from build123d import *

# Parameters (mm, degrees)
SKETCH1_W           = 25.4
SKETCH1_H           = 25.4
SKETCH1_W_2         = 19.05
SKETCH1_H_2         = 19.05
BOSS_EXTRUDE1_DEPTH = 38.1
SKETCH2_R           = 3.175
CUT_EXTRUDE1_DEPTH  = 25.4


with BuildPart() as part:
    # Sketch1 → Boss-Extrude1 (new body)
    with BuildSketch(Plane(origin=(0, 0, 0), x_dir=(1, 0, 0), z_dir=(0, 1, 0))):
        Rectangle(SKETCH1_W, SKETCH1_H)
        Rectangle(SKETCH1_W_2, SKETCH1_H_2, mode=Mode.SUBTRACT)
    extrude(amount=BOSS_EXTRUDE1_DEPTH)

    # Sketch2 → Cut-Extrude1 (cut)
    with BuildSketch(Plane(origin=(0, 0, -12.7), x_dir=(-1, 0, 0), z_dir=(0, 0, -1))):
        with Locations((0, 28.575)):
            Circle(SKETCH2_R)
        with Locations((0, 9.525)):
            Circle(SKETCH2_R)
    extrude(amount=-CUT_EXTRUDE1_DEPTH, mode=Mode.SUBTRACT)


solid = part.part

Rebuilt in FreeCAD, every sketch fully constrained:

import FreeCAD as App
import Part
import Sketcher
from FreeCAD import Vector
Q = App.Units.Quantity


def add_polygon(sketch, points):
    """Adds a closed chain of lines whose ends are joined by coincident constraints."""
    first, n = sketch.GeometryCount, len(points)
    for a, b in zip(points, points[1:] + points[:1]):
        sketch.addGeometry(Part.LineSegment(App.Vector(*a, 0), App.Vector(*b, 0)), False)
    for i in range(n):
        sketch.addConstraint(Sketcher.Constraint("Coincident", first + i, 2, first + (i + 1) % n, 1))

doc = App.newDocument("Part")
body = doc.addObject("PartDesign::Body", "Body")

sketch1 = doc.addObject("Sketcher::SketchObject", "Sketch")
body.addObject(sketch1)
sketch1.AttachmentSupport = (doc.XZ_Plane, [""])
sketch1.MapMode = "FlatFace"
add_polygon(sketch1, [(-13, -13), (-13, 13), (13, 13), (13, -13)])
add_polygon(sketch1, [(10, 10), (-10, 10), (-10, -10), (10, -10)])
sketch1.addConstraint([
    Sketcher.Constraint("Vertical", 0),
    Sketcher.Constraint("Horizontal", 1),
    Sketcher.Constraint("Vertical", 2),
    Sketcher.Constraint("Horizontal", 3),
    Sketcher.Constraint("Horizontal", 4),
    Sketcher.Constraint("Vertical", 5),
    Sketcher.Constraint("Horizontal", 6),
    Sketcher.Constraint("Vertical", 7),
    Sketcher.Constraint("Symmetric", 0, 2, 2, 2, -1, 1),
    Sketcher.Constraint("Symmetric", 4, 2, 6, 2, -1, 1),
    Sketcher.Constraint("Equal", 3, 0),
    Sketcher.Constraint("Equal", 6, 5),
    Sketcher.Constraint("DistanceX", 1, 1, 1, 2, Q("1 in")),
    Sketcher.Constraint("DistanceX", 4, 2, 4, 1, Q("0.75 in")),
])
pad1 = doc.addObject("PartDesign::Pad", "Pad")
body.addObject(pad1)
pad1.Profile = sketch1
pad1.Length = Q("1.5 in")
pad1.Reversed = True

sketch2 = doc.addObject("Sketcher::SketchObject", "Sketch001")
body.addObject(sketch2)
sketch2.AttachmentSupport = (doc.XY_Plane, [""])
sketch2.MapMode = "FlatFace"
sketch2.AttachmentOffset = App.Placement(Vector(0, 0, -0.5 * 25.4), App.Rotation())
sketch2.addGeometry([
    Part.Circle(Vector(0, 28.6, 0), Vector(0, 0, 1), 3.2),
    Part.Circle(Vector(0, 9.5, 0), Vector(0, 0, 1), 3.2),
], False)
sketch2.addConstraint([
    Sketcher.Constraint("Equal", 0, 1),
    Sketcher.Constraint("PointOnObject", 0, 3, -2),
    Sketcher.Constraint("PointOnObject", 1, 3, -2),
    Sketcher.Constraint("Diameter", 0, Q("0.25 in")),
    Sketcher.Constraint("DistanceY", 1, 3, 0, 3, Q("0.75 in")),
    Sketcher.Constraint("DistanceY", -1, 1, 0, 3, Q("1.125 in")),
])
pocket1 = doc.addObject("PartDesign::Pocket", "Pocket")
body.addObject(pocket1)
pocket1.Profile = sketch2
pocket1.Length = Q("1 in")
pocket1.Reversed = True

doc.recompute()
